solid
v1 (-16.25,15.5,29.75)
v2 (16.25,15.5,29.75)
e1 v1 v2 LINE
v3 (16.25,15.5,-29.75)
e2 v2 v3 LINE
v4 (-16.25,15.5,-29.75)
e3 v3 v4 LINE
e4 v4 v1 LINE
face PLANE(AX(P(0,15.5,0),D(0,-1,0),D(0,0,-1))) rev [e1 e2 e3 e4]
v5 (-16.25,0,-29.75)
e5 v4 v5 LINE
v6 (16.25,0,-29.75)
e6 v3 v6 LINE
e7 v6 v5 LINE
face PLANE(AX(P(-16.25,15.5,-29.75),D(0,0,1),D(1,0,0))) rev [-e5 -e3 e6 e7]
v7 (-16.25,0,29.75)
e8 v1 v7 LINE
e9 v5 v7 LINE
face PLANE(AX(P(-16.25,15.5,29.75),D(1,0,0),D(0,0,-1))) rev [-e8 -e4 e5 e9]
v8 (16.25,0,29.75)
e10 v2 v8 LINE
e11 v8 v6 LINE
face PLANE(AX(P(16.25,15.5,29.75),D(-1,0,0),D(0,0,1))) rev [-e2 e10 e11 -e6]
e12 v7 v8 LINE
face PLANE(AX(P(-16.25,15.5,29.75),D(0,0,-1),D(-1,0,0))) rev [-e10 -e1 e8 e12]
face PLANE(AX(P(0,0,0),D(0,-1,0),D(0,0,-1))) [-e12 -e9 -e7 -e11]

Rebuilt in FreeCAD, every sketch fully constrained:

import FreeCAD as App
import Part
import Sketcher
Q = App.Units.Quantity

doc = App.newDocument("Part")
params = doc.addObject("Spreadsheet::Sheet", "Params")
for row, (alias, value) in enumerate([
    ("sketch1_width", "32.5 mm"),
    ("sketch1_height", "59.5 mm"),
    ("pad1_length", "15.5 mm"),
], start=1):
    params.set(f"A{row}", alias)
    params.set(f"B{row}", "=" + value)
    params.setAlias(f"B{row}", alias)

body = doc.addObject("PartDesign::Body", "Body")

# Sketch on XZ plane
sketch1 = doc.addObject("Sketcher::SketchObject", "Sketch")
body.addObject(sketch1)
sketch1.AttachmentSupport = (doc.XZ_Plane, [""])
sketch1.MapMode = "FlatFace"
sketch1.addGeometry([
    Part.LineSegment(App.Vector(-16, -30, 0), App.Vector(-16, 30, 0)),
    Part.LineSegment(App.Vector(-16, 30, 0), App.Vector(16, 30, 0)),
    Part.LineSegment(App.Vector(16, 30, 0), App.Vector(16, -30, 0)),
    Part.LineSegment(App.Vector(16, -30, 0), App.Vector(-16, -30, 0)),
], False)
sketch1.addConstraint([
    Sketcher.Constraint("Coincident", 0, 2, 1, 1),
    Sketcher.Constraint("Coincident", 1, 2, 2, 1),
    Sketcher.Constraint("Coincident", 2, 2, 3, 1),
    Sketcher.Constraint("Coincident", 3, 2, 0, 1),
    Sketcher.Constraint("Vertical", 0),
    Sketcher.Constraint("Horizontal", 1),
    Sketcher.Constraint("Vertical", 2),
    Sketcher.Constraint("Horizontal", 3),
    Sketcher.Constraint("Symmetric", 0, 2, 2, 2, -1, 1),
    Sketcher.Constraint("DistanceX", 1, 1, 1, 2, Q("32.5 mm")),
    Sketcher.Constraint("DistanceY", 0, 1, 0, 2, Q("59.5 mm")),
])
sketch1.setExpression("Constraints[9]", "Params.sketch1_width")
sketch1.setExpression("Constraints[10]", "Params.sketch1_height")
pad1 = doc.addObject("PartDesign::Pad", "Pad")
body.addObject(pad1)
pad1.Profile = sketch1
pad1.setExpression("Length", "Params.pad1_length")
pad1.Reversed = True

doc.recompute()
